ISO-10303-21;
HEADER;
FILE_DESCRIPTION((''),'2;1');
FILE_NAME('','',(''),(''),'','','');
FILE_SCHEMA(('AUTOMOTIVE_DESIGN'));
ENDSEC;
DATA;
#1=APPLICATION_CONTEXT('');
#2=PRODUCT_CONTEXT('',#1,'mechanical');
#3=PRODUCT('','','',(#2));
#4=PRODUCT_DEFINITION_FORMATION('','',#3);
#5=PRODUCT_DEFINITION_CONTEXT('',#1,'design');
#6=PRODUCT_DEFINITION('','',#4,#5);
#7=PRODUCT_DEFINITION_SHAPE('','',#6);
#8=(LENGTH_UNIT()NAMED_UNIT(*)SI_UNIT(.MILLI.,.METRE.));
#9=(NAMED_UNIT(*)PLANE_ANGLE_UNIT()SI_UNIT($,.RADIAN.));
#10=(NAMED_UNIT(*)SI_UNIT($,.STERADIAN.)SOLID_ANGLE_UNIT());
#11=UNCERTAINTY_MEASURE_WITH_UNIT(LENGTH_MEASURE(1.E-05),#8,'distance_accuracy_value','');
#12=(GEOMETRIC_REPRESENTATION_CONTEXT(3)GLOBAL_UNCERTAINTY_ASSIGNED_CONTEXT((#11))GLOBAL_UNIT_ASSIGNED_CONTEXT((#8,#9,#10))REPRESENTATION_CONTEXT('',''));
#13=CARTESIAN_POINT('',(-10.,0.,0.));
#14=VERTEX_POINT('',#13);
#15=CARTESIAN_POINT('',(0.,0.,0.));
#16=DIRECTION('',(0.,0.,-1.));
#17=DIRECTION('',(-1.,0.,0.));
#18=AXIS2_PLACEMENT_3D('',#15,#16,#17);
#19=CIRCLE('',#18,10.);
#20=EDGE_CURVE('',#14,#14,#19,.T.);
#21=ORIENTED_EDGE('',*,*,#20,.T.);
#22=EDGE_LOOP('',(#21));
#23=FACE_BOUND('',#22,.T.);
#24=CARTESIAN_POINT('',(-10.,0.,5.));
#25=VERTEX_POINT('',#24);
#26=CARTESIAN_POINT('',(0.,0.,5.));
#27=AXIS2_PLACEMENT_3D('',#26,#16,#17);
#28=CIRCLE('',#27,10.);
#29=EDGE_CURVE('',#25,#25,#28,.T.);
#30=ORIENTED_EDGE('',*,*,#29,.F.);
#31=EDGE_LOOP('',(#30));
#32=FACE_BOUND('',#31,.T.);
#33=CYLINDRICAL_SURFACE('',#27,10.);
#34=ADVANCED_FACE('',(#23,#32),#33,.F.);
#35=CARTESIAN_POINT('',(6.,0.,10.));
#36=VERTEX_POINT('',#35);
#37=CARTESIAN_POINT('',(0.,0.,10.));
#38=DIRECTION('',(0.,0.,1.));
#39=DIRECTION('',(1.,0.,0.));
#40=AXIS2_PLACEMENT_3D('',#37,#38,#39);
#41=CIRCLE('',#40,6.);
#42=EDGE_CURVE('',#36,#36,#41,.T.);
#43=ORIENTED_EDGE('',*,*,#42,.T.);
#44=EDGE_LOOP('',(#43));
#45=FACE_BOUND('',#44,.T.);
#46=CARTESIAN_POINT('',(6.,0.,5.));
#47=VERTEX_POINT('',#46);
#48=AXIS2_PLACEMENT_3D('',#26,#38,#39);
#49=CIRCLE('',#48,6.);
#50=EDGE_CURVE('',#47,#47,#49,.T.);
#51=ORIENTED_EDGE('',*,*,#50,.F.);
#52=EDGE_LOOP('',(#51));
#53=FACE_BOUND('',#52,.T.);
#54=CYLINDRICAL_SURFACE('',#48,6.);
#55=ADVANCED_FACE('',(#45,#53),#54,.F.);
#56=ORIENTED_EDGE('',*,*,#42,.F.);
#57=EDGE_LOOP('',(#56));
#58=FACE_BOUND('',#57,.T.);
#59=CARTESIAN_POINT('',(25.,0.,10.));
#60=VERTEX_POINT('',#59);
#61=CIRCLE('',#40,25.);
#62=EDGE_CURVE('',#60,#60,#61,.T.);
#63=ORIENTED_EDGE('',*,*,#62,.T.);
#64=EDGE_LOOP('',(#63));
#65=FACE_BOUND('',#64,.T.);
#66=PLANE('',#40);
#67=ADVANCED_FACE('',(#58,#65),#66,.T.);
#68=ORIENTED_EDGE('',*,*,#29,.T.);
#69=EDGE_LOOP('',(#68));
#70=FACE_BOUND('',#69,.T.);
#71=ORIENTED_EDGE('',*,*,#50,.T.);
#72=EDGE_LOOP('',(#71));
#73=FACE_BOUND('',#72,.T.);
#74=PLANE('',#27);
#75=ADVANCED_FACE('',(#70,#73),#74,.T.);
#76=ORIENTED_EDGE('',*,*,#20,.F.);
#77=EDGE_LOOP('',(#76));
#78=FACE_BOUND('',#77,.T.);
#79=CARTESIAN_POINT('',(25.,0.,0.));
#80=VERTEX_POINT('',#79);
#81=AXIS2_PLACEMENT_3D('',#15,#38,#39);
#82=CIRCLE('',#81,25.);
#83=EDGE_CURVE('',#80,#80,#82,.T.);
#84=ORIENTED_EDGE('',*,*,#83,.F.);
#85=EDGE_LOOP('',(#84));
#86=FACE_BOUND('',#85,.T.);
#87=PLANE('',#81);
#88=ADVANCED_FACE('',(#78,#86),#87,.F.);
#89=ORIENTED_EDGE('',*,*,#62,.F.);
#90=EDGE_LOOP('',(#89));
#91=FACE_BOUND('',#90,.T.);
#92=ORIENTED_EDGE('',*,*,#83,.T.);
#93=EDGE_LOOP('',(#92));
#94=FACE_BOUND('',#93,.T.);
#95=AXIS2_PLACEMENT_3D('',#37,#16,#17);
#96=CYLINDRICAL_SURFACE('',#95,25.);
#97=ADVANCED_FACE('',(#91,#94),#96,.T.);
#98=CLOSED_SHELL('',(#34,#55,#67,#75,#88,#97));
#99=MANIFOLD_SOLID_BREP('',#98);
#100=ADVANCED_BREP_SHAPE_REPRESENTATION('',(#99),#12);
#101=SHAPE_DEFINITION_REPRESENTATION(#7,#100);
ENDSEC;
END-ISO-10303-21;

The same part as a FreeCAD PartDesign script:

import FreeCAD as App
import Part
import Sketcher

V = App.Vector

doc = App.newDocument("Part")
body = doc.addObject("PartDesign::Body", "Body")

# Sketch on XY plane
sketch1 = body.newObject("Sketcher::SketchObject", "Sketch")
sketch1.AttachmentSupport = (doc.getObject("XY_Plane"), [""])
sketch1.MapMode = "FlatFace"
sketch1.addGeometry(Part.Circle(V(0, 0, 0), V(0, 0, 1), 25), False)
sketch1.addConstraint(Sketcher.Constraint("Coincident", 0, 3, -1, 1))
sketch1.addConstraint(Sketcher.Constraint("Diameter", 0, 50.0))
pad1 = body.newObject("PartDesign::Pad", "Pad")
pad1.Profile = sketch1
pad1.Length = 10

# Sketch on XY plane
sketch2 = body.newObject("Sketcher::SketchObject", "Sketch001")
sketch2.AttachmentSupport = (doc.getObject("XY_Plane"), [""])
sketch2.MapMode = "FlatFace"
sketch2.AttachmentOffset = App.Placement(V(0, 0, 10), App.Rotation())
sketch2.addGeometry(Part.Circle(V(0, 0, 0), V(0, 0, 1), 6), False)
sketch2.addConstraint(Sketcher.Constraint("Coincident", 0, 3, -1, 1))
sketch2.addConstraint(Sketcher.Constraint("Diameter", 0, 12.0))
pocket1 = body.newObject("PartDesign::Pocket", "Pocket")
pocket1.Profile = sketch2
pocket1.Length = 5

# Sketch on XY plane
sketch3 = body.newObject("Sketcher::SketchObject", "Sketch002")
sketch3.AttachmentSupport = (doc.getObject("XY_Plane"), [""])
sketch3.MapMode = "FlatFace"
sketch3.addGeometry(Part.Circle(V(0, 0, 0), V(0, 0, 1), 10), False)
sketch3.addConstraint(Sketcher.Constraint("Coincident", 0, 3, -1, 1))
sketch3.addConstraint(Sketcher.Constraint("Diameter", 0, 20.0))
pocket2 = body.newObject("PartDesign::Pocket", "Pocket001")
pocket2.Profile = sketch3
pocket2.Length = 5
pocket2.Reversed = True

doc.recompute()
